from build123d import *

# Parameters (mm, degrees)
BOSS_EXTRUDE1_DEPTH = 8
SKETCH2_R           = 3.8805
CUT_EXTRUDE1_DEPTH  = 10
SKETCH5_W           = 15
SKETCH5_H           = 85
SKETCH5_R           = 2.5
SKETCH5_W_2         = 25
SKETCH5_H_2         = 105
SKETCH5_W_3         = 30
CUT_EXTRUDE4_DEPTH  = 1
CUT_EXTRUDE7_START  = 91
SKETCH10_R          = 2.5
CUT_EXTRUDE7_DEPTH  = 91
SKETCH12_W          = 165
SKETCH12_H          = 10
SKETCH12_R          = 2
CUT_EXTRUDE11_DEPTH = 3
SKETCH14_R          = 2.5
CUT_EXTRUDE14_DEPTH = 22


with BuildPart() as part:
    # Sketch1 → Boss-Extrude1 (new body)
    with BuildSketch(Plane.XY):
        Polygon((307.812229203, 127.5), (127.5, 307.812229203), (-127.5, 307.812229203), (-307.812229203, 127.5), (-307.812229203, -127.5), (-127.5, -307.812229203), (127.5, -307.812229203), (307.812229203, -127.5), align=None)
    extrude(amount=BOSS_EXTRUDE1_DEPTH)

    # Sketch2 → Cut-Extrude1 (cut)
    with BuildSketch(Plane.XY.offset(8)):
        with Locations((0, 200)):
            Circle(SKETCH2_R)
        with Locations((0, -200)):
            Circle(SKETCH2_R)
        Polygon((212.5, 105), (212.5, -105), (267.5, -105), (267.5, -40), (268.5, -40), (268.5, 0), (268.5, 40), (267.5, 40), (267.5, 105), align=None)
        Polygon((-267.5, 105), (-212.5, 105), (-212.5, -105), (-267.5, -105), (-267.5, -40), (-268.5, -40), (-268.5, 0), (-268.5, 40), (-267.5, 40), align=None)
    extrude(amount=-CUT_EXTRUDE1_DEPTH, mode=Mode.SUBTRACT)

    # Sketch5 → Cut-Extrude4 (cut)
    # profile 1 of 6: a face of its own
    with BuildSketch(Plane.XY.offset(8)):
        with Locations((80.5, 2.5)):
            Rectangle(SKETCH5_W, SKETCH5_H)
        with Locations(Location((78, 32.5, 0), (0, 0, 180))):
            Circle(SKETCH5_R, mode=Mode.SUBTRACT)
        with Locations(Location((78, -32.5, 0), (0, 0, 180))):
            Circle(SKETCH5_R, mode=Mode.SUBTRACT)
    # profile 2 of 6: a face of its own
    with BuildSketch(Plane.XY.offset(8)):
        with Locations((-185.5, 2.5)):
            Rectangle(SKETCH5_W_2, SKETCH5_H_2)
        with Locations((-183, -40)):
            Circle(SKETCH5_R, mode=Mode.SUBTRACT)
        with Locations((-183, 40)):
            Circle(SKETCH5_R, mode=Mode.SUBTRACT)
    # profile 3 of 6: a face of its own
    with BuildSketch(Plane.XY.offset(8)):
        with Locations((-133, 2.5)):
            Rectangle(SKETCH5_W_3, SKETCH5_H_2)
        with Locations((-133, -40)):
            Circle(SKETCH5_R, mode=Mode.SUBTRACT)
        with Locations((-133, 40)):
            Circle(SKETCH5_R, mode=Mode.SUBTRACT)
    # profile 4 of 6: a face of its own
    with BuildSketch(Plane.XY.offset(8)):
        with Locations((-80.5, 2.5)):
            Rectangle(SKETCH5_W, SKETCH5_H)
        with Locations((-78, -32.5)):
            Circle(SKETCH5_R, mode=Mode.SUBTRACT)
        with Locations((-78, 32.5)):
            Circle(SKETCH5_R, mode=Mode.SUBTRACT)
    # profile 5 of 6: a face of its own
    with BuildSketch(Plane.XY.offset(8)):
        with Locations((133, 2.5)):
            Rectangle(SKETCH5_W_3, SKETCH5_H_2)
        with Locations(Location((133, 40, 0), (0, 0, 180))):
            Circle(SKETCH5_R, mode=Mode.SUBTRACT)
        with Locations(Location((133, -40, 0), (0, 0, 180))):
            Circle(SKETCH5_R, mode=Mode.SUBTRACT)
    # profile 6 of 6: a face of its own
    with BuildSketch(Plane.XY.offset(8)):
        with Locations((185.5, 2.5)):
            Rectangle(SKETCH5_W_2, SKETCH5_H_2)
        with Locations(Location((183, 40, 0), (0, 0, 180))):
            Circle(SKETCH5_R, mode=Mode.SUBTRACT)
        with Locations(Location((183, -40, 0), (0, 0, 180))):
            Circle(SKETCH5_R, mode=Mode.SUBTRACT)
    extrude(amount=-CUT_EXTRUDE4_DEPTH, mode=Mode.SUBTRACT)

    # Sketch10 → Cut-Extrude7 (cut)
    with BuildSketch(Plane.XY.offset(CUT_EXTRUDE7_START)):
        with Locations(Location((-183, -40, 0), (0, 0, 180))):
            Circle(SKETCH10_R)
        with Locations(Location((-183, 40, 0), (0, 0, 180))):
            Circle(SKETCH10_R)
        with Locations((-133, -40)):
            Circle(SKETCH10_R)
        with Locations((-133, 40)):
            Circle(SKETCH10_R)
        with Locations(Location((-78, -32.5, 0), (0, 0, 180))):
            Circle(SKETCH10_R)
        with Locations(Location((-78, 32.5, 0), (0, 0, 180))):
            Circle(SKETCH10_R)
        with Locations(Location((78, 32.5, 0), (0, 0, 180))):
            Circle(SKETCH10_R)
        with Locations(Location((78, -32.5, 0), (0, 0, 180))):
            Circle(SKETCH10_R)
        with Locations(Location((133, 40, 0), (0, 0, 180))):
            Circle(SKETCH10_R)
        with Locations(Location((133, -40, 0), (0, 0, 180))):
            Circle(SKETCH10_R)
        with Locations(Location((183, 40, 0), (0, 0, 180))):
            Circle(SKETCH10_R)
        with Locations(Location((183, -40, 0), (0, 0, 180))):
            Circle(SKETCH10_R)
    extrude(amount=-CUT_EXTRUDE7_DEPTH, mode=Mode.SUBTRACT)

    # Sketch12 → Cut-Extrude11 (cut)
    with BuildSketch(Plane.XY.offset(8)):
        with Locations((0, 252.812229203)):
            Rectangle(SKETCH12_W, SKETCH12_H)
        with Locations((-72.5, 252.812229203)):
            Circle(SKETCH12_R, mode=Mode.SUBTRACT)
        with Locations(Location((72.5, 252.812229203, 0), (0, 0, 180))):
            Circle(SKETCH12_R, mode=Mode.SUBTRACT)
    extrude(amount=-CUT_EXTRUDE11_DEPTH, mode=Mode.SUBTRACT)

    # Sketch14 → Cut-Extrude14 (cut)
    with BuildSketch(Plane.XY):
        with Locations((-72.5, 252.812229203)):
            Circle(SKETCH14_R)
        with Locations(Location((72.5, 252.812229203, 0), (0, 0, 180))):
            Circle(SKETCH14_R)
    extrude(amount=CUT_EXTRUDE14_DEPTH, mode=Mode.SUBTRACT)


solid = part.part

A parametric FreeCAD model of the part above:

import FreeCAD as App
import Part
import Sketcher
from FreeCAD import Vector


def add_polygon(sketch, points):
    """Adds a closed chain of lines whose ends are joined by coincident constraints."""
    first, n = sketch.GeometryCount, len(points)
    for a, b in zip(points, points[1:] + points[:1]):
        sketch.addGeometry(Part.LineSegment(App.Vector(*a, 0), App.Vector(*b, 0)), False)
    for i in range(n):
        sketch.addConstraint(Sketcher.Constraint("Coincident", first + i, 2, first + (i + 1) % n, 1))

doc = App.newDocument("Part")
body = doc.addObject("PartDesign::Body", "Body")

sketch1 = body.newObject("Sketcher::SketchObject", "Sketch")
sketch1.AttachmentSupport = (doc.getObject("XY_Plane"), [""])
sketch1.MapMode = "FlatFace"
add_polygon(sketch1, [(308, 128), (128, 308), (-128, 308), (-308, 128), (-308, -128), (-128, -308), (128, -308), (308, -128)])
sketch1.addConstraint([
    Sketcher.Constraint("Horizontal", 1),
    Sketcher.Constraint("Vertical", 3),
    Sketcher.Constraint("Horizontal", 5),
    Sketcher.Constraint("Vertical", 7),
    Sketcher.Constraint("Symmetric", 0, 2, 4, 2, -1, 1),
    Sketcher.Constraint("Symmetric", 2, 2, 6, 2, -1, 1),
    Sketcher.Constraint("Perpendicular", 0, 2),
    Sketcher.Constraint("Perpendicular", 2, 4),
    Sketcher.Constraint("Perpendicular", 4, 6),
    Sketcher.Constraint("Horizontal", 3, 2, 6, 2),
    Sketcher.Constraint("Vertical", 1, 2, 4, 2),
    Sketcher.Constraint("Equal", 5, 3),
    Sketcher.Constraint("DistanceX", 1, 2, 1, 1, 255.0),
    Sketcher.Constraint("Distance", 0, 255.0),
])
pad1 = body.newObject("PartDesign::Pad", "Pad")
pad1.Profile = sketch1
pad1.Length = 8

sketch2 = body.newObject("Sketcher::SketchObject", "Sketch001")
sketch2.AttachmentSupport = (doc.getObject("XY_Plane"), [""])
sketch2.MapMode = "FlatFace"
sketch2.AttachmentOffset = App.Placement(Vector(0, 0, 8), App.Rotation())
sketch2.addGeometry(Part.Circle(Vector(0, 200, 0), Vector(0, 0, 1), 3.9), False)
sketch2.addGeometry(Part.Circle(Vector(0, -200, 0), Vector(0, 0, 1), 3.9), False)
add_polygon(sketch2, [(212.5, 105), (212.5, -105), (267.5, -105), (267.5, -40), (268.5, -40), (268.5, 40), (267.5, 40), (267.5, 105)])
add_polygon(sketch2, [(-212.5, 105), (-267.5, 105), (-267.5, 40), (-268.5, 40), (-268.5, -40), (-267.5, -40), (-267.5, -105), (-212.5, -105)])
sketch2.addConstraint([
    Sketcher.Constraint("Vertical", 2),
    Sketcher.Constraint("Horizontal", 3),
    Sketcher.Constraint("Vertical", 4),
    Sketcher.Constraint("Horizontal", 5),
    Sketcher.Constraint("Vertical", 6),
    Sketcher.Constraint("Horizontal", 7),
    Sketcher.Constraint("Vertical", 8),
    Sketcher.Constraint("Horizontal", 9),
    Sketcher.Constraint("Horizontal", 10),
    Sketcher.Constraint("Vertical", 11),
    Sketcher.Constraint("Horizontal", 12),
    Sketcher.Constraint("Vertical", 13),
    Sketcher.Constraint("Horizontal", 14),
    Sketcher.Constraint("Vertical", 15),
    Sketcher.Constraint("Horizontal", 16),
    Sketcher.Constraint("Vertical", 17),
    Sketcher.Constraint("Equal", 0, 1),
    Sketcher.Constraint("Symmetric", 0, 3, 1, 3, -1, 1),
    Sketcher.Constraint("Symmetric", 3, 2, 10, 2, -1, 1),
    Sketcher.Constraint("Symmetric", 5, 2, 12, 2, -1, 1),
    Sketcher.Constraint("Symmetric", 7, 2, 14, 2, -1, 1),
    Sketcher.Constraint("Symmetric", 9, 2, 16, 2, -1, 1),
    Sketcher.Constraint("Symmetric", 8, 2, 10, 2, -2),
    Sketcher.Constraint("PointOnObject", 0, 3, -2),
    Sketcher.Constraint("Horizontal", 7, 2, 11, 2),
    Sketcher.Constraint("DistanceX", 3, 1, 3, 2, 55.0),
    Sketcher.Constraint("DistanceX", 5, 1, 5, 2, 1.0),
    Sketcher.Constraint("DistanceY", 2, 2, 2, 1, 210.0),
    Sketcher.Constraint("DistanceY", 4, 1, 4, 2, 65.0),
    Sketcher.Constraint("Diameter", 0, 7.761),
    Sketcher.Constraint("DistanceY", -1, 1, 0, 3, 200.0),
    Sketcher.Constraint("DistanceX", 10, 2, 9, 2, 480.0),
])
pocket1 = body.newObject("PartDesign::Pocket", "Pocket")
pocket1.Profile = sketch2
pocket1.Length = 10

sketch3 = body.newObject("Sketcher::SketchObject", "Sketch002")
sketch3.AttachmentSupport = (doc.getObject("XY_Plane"), [""])
sketch3.MapMode = "FlatFace"
sketch3.AttachmentOffset = App.Placement(Vector(0, 0, 8), App.Rotation())
add_polygon(sketch3, [(73, 45), (73, -40), (88, -40), (88, 45)])
sketch3.addGeometry(Part.Circle(Vector(78, -32.5, 0), Vector(0, 0, 1), 2.5), False)
sketch3.addGeometry(Part.Circle(Vector(78, 32.5, 0), Vector(0, 0, 1), 2.5), False)
add_polygon(sketch3, [(-198, 55), (-198, -50), (-173, -50), (-173, 55)])
sketch3.addGeometry(Part.Circle(Vector(-183, -40, 0), Vector(0, 0, 1), 2.5), False)
sketch3.addGeometry(Part.Circle(Vector(-183, 40, 0), Vector(0, 0, 1), 2.5), False)
add_polygon(sketch3, [(-148, 55), (-148, -50), (-118, -50), (-118, 55)])
sketch3.addGeometry(Part.Circle(Vector(-133, -40, 0), Vector(0, 0, 1), 2.5), False)
sketch3.addGeometry(Part.Circle(Vector(-133, 40, 0), Vector(0, 0, 1), 2.5), False)
add_polygon(sketch3, [(-88, 45), (-88, -40), (-73, -40), (-73, 45)])
sketch3.addGeometry(Part.Circle(Vector(-78, -32.5, 0), Vector(0, 0, 1), 2.5), False)
sketch3.addGeometry(Part.Circle(Vector(-78, 32.5, 0), Vector(0, 0, 1), 2.5), False)
add_polygon(sketch3, [(118, 55), (118, -50), (148, -50), (148, 55)])
sketch3.addGeometry(Part.Circle(Vector(133, -40, 0), Vector(0, 0, 1), 2.5), False)
sketch3.addGeometry(Part.Circle(Vector(133, 40, 0), Vector(0, 0, 1), 2.5), False)
add_polygon(sketch3, [(173, 55), (173, -50), (198, -50), (198, 55)])
sketch3.addGeometry(Part.Circle(Vector(183, -40, 0), Vector(0, 0, 1), 2.5), False)
sketch3.addGeometry(Part.Circle(Vector(183, 40, 0), Vector(0, 0, 1), 2.5), False)
sketch3.addConstraint([
    Sketcher.Constraint("Vertical", 0),
    Sketcher.Constraint("Horizontal", 1),
    Sketcher.Constraint("Vertical", 2),
    Sketcher.Constraint("Horizontal", 3),
    Sketcher.Constraint("Vertical", 6),
    Sketcher.Constraint("Horizontal", 7),
    Sketcher.Constraint("Vertical", 8),
    Sketcher.Constraint("Horizontal", 9),
    Sketcher.Constraint("Vertical", 12),
    Sketcher.Constraint("Horizontal", 13),
    Sketcher.Constraint("Vertical", 14),
    Sketcher.Constraint("Horizontal", 15),
    Sketcher.Constraint("Vertical", 18),
    Sketcher.Constraint("Horizontal", 19),
    Sketcher.Constraint("Vertical", 20),
    Sketcher.Constraint("Horizontal", 21),
    Sketcher.Constraint("Vertical", 24),
    Sketcher.Constraint("Horizontal", 25),
    Sketcher.Constraint("Vertical", 26),
    Sketcher.Constraint("Horizontal", 27),
    Sketcher.Constraint("Vertical", 30),
    Sketcher.Constraint("Horizontal", 31),
    Sketcher.Constraint("Vertical", 32),
    Sketcher.Constraint("Horizontal", 33),
    Sketcher.Constraint("Equal", 4, 5),
    Sketcher.Constraint("Equal", 5, 10),
    Sketcher.Constraint("Equal", 10, 11),
    Sketcher.Constraint("Equal", 11, 16),
    Sketcher.Constraint("Equal", 16, 17),
    Sketcher.Constraint("Equal", 17, 22),
    Sketcher.Constraint("Equal", 22, 23),
    Sketcher.Constraint("Equal", 23, 28),
    Sketcher.Constraint("Equal", 28, 29),
    Sketcher.Constraint("Equal", 29, 34),
    Sketcher.Constraint("Equal", 34, 35),
    Sketcher.Constraint("Symmetric", 5, 3, 22, 3, -1, 1),
    Sketcher.Constraint("Symmetric", 4, 3, 23, 3, -1, 1),
    Sketcher.Constraint("Symmetric", 17, 3, 28, 3, -1, 1),
    Sketcher.Constraint("Symmetric", 16, 3, 29, 3, -1, 1),
    Sketcher.Constraint("Symmetric", 11, 3, 34, 3, -1, 1),
    Sketcher.Constraint("Symmetric", 10, 3, 35, 3, -1, 1),
    Sketcher.Constraint("Symmetric", 4, 3, 22, 3, -2),
    Sketcher.Constraint("Symmetric", 16, 3, 28, 3, -2),
    Sketcher.Constraint("Symmetric", 10, 3, 34, 3, -2),
    Sketcher.Constraint("Symmetric", 1, 2, 18, 2, -2),
    Sketcher.Constraint("Symmetric", 3, 2, 20, 2, -2),
    Sketcher.Constraint("Symmetric", 13, 2, 24, 2, -2),
    Sketcher.Constraint("Symmetric", 15, 2, 26, 2, -2),
    Sketcher.Constraint("Symmetric", 7, 2, 30, 2, -2),
    Sketcher.Constraint("Symmetric", 9, 2, 32, 2, -2),
    Sketcher.Constraint("Horizontal", 10, 3, 16, 3),
    Sketcher.Constraint("Horizontal", 34, 3, 0, 2),
    Sketcher.Constraint("Horizontal", 7, 2, 12, 2),
    Sketcher.Constraint("Horizontal", 9, 2, 14, 2),
    Sketcher.Constraint("Diameter", 4, 5.0),
    Sketcher.Constraint("DistanceX", 1, 1, 1, 2, 15.0),
    Sketcher.Constraint("DistanceX", 7, 1, 7, 2, 25.0),
    Sketcher.Constraint("DistanceX", 13, 1, 13, 2, 30.0),
    Sketcher.Constraint("DistanceY", 0, 2, 0, 1, 85.0),
    Sketcher.Constraint("DistanceY", 6, 2, 6, 1, 105.0),
    Sketcher.Constraint("DistanceX", -1, 1, 4, 3, 78.0),
    Sketcher.Constraint("DistanceX", 10, 3, -1, 1, 183.0),
    Sketcher.Constraint("DistanceY", 10, 3, -1, 1, 40.0),
    Sketcher.Constraint("DistanceX", 16, 3, -1, 1, 133.0),
    Sketcher.Constraint("DistanceX", -1, 1, 0, 2, 73.0),
    Sketcher.Constraint("DistanceX", 6, 2, -1, 1, 198.0),
    Sketcher.Constraint("DistanceY", 6, 2, -1, 1, 50.0),
    Sketcher.Constraint("DistanceX", 12, 2, -1, 1, 148.0),
    Sketcher.Constraint("DistanceY", 4, 3, 5, 3, 65.0),
])
pocket2 = body.newObject("PartDesign::Pocket", "Pocket001")
pocket2.Profile = sketch3
pocket2.Length = 1

sketch4 = body.newObject("Sketcher::SketchObject", "Sketch003")
sketch4.AttachmentSupport = (doc.getObject("XY_Plane"), [""])
sketch4.MapMode = "FlatFace"
sketch4.AttachmentOffset = App.Placement(Vector(0, 0, 91), App.Rotation())
sketch4.addGeometry([
    Part.Circle(Vector(-183, -40, 0), Vector(0, 0, 1), 2.5),
    Part.Circle(Vector(-183, 40, 0), Vector(0, 0, 1), 2.5),
    Part.Circle(Vector(-133, -40, 0), Vector(0, 0, 1), 2.5),
    Part.Circle(Vector(-133, 40, 0), Vector(0, 0, 1), 2.5),
    Part.Circle(Vector(-78, -32.5, 0), Vector(0, 0, 1), 2.5),
    Part.Circle(Vector(-78, 32.5, 0), Vector(0, 0, 1), 2.5),
    Part.Circle(Vector(78, 32.5, 0), Vector(0, 0, 1), 2.5),
    Part.Circle(Vector(78, -32.5, 0), Vector(0, 0, 1), 2.5),
    Part.Circle(Vector(133, 40, 0), Vector(0, 0, 1), 2.5),
    Part.Circle(Vector(133, -40, 0), Vector(0, 0, 1), 2.5),
    Part.Circle(Vector(183, 40, 0), Vector(0, 0, 1), 2.5),
    Part.Circle(Vector(183, -40, 0), Vector(0, 0, 1), 2.5),
], False)
sketch4.addConstraint([
    Sketcher.Constraint("Equal", 0, 1),
    Sketcher.Constraint("Equal", 1, 2),
    Sketcher.Constraint("Equal", 2, 3),
    Sketcher.Constraint("Equal", 3, 4),
    Sketcher.Constraint("Equal", 4, 5),
    Sketcher.Constraint("Equal", 5, 6),
    Sketcher.Constraint("Equal", 6, 7),
    Sketcher.Constraint("Equal", 7, 8),
    Sketcher.Constraint("Equal", 8, 9),
    Sketcher.Constraint("Equal", 9, 10),
    Sketcher.Constraint("Equal", 10, 11),
    Sketcher.Constraint("Symmetric", 4, 3, 6, 3, -1, 1),
    Sketcher.Constraint("Symmetric", 5, 3, 7, 3, -1, 1),
    Sketcher.Constraint("Symmetric", 2, 3, 8, 3, -1, 1),
    Sketcher.Constraint("Symmetric", 3, 3, 9, 3, -1, 1),
    Sketcher.Constraint("Symmetric", 0, 3, 10, 3, -1, 1),
    Sketcher.Constraint("Symmetric", 1, 3, 11, 3, -1, 1),
    Sketcher.Constraint("Symmetric", 5, 3, 6, 3, -2),
    Sketcher.Constraint("Symmetric", 3, 3, 8, 3, -2),
    Sketcher.Constraint("Symmetric", 1, 3, 10, 3, -2),
    Sketcher.Constraint("Horizontal", 0, 3, 2, 3),
    Sketcher.Constraint("Diameter", 0, 5.0),
    Sketcher.Constraint("DistanceX", 0, 3, -1, 1, 183.0),
    Sketcher.Constraint("DistanceY", 0, 3, -1, 1, 40.0),
    Sketcher.Constraint("DistanceX", 2, 3, -1, 1, 133.0),
    Sketcher.Constraint("DistanceX", 4, 3, -1, 1, 78.0),
    Sketcher.Constraint("DistanceY", 4, 3, 5, 3, 65.0),
])
pocket3 = body.newObject("PartDesign::Pocket", "Pocket002")
pocket3.Profile = sketch4
pocket3.Length = 91

sketch5 = body.newObject("Sketcher::SketchObject", "Sketch004")
sketch5.AttachmentSupport = (doc.getObject("XY_Plane"), [""])
sketch5.MapMode = "FlatFace"
sketch5.AttachmentOffset = App.Placement(Vector(0, 0, 8), App.Rotation())
add_polygon(sketch5, [(-82.5, 257.8), (-82.5, 247.8), (82.5, 247.8), (82.5, 257.8)])
sketch5.addGeometry(Part.Circle(Vector(-72.5, 252.8, 0), Vector(0, 0, 1), 2), False)
sketch5.addGeometry(Part.Circle(Vector(72.5, 252.8, 0), Vector(0, 0, 1), 2), False)
sketch5.addConstraint([
    Sketcher.Constraint("Vertical", 0),
    Sketcher.Constraint("Horizontal", 1),
    Sketcher.Constraint("Vertical", 2),
    Sketcher.Constraint("Horizontal", 3),
    Sketcher.Constraint("Equal", 4, 5),
    Sketcher.Constraint("Symmetric", 4, 3, 5, 3, -2),
    Sketcher.Constraint("Diameter", 4, 4.0),
    Sketcher.Constraint("DistanceX", 1, 1, 1, 2, 165.0),
    Sketcher.Constraint("DistanceY", 0, 2, 0, 1, 10.0),
    Sketcher.Constraint("DistanceX", 4, 3, 5, 3, 145.0),
    Sketcher.Constraint("DistanceX", 0, 2, 4, 3, 10.0),
    Sketcher.Constraint("DistanceY", 0, 2, 4, 3, 5.0),
    Sketcher.Constraint("DistanceY", -1, 1, 4, 3, 252.812229),
])
pocket4 = body.newObject("PartDesign::Pocket", "Pocket003")
pocket4.Profile = sketch5
pocket4.Length = 3

sketch6 = body.newObject("Sketcher::SketchObject", "Sketch005")
sketch6.AttachmentSupport = (doc.getObject("XY_Plane"), [""])
sketch6.MapMode = "FlatFace"
sketch6.addGeometry([
    Part.Circle(Vector(-72.5, 252.8, 0), Vector(0, 0, 1), 2.5),
    Part.Circle(Vector(72.5, 252.8, 0), Vector(0, 0, 1), 2.5),
], False)
sketch6.addConstraint([
    Sketcher.Constraint("Equal", 0, 1),
    Sketcher.Constraint("Symmetric", 0, 3, 1, 3, -2),
    Sketcher.Constraint("Diameter", 0, 5.0),
    Sketcher.Constraint("DistanceX", 0, 3, 1, 3, 145.0),
    Sketcher.Constraint("DistanceY", -1, 1, 0, 3, 252.812229),
])
pocket5 = body.newObject("PartDesign::Pocket", "Pocket004")
pocket5.Profile = sketch6
pocket5.Length = 22
pocket5.Reversed = True

doc.recompute()
